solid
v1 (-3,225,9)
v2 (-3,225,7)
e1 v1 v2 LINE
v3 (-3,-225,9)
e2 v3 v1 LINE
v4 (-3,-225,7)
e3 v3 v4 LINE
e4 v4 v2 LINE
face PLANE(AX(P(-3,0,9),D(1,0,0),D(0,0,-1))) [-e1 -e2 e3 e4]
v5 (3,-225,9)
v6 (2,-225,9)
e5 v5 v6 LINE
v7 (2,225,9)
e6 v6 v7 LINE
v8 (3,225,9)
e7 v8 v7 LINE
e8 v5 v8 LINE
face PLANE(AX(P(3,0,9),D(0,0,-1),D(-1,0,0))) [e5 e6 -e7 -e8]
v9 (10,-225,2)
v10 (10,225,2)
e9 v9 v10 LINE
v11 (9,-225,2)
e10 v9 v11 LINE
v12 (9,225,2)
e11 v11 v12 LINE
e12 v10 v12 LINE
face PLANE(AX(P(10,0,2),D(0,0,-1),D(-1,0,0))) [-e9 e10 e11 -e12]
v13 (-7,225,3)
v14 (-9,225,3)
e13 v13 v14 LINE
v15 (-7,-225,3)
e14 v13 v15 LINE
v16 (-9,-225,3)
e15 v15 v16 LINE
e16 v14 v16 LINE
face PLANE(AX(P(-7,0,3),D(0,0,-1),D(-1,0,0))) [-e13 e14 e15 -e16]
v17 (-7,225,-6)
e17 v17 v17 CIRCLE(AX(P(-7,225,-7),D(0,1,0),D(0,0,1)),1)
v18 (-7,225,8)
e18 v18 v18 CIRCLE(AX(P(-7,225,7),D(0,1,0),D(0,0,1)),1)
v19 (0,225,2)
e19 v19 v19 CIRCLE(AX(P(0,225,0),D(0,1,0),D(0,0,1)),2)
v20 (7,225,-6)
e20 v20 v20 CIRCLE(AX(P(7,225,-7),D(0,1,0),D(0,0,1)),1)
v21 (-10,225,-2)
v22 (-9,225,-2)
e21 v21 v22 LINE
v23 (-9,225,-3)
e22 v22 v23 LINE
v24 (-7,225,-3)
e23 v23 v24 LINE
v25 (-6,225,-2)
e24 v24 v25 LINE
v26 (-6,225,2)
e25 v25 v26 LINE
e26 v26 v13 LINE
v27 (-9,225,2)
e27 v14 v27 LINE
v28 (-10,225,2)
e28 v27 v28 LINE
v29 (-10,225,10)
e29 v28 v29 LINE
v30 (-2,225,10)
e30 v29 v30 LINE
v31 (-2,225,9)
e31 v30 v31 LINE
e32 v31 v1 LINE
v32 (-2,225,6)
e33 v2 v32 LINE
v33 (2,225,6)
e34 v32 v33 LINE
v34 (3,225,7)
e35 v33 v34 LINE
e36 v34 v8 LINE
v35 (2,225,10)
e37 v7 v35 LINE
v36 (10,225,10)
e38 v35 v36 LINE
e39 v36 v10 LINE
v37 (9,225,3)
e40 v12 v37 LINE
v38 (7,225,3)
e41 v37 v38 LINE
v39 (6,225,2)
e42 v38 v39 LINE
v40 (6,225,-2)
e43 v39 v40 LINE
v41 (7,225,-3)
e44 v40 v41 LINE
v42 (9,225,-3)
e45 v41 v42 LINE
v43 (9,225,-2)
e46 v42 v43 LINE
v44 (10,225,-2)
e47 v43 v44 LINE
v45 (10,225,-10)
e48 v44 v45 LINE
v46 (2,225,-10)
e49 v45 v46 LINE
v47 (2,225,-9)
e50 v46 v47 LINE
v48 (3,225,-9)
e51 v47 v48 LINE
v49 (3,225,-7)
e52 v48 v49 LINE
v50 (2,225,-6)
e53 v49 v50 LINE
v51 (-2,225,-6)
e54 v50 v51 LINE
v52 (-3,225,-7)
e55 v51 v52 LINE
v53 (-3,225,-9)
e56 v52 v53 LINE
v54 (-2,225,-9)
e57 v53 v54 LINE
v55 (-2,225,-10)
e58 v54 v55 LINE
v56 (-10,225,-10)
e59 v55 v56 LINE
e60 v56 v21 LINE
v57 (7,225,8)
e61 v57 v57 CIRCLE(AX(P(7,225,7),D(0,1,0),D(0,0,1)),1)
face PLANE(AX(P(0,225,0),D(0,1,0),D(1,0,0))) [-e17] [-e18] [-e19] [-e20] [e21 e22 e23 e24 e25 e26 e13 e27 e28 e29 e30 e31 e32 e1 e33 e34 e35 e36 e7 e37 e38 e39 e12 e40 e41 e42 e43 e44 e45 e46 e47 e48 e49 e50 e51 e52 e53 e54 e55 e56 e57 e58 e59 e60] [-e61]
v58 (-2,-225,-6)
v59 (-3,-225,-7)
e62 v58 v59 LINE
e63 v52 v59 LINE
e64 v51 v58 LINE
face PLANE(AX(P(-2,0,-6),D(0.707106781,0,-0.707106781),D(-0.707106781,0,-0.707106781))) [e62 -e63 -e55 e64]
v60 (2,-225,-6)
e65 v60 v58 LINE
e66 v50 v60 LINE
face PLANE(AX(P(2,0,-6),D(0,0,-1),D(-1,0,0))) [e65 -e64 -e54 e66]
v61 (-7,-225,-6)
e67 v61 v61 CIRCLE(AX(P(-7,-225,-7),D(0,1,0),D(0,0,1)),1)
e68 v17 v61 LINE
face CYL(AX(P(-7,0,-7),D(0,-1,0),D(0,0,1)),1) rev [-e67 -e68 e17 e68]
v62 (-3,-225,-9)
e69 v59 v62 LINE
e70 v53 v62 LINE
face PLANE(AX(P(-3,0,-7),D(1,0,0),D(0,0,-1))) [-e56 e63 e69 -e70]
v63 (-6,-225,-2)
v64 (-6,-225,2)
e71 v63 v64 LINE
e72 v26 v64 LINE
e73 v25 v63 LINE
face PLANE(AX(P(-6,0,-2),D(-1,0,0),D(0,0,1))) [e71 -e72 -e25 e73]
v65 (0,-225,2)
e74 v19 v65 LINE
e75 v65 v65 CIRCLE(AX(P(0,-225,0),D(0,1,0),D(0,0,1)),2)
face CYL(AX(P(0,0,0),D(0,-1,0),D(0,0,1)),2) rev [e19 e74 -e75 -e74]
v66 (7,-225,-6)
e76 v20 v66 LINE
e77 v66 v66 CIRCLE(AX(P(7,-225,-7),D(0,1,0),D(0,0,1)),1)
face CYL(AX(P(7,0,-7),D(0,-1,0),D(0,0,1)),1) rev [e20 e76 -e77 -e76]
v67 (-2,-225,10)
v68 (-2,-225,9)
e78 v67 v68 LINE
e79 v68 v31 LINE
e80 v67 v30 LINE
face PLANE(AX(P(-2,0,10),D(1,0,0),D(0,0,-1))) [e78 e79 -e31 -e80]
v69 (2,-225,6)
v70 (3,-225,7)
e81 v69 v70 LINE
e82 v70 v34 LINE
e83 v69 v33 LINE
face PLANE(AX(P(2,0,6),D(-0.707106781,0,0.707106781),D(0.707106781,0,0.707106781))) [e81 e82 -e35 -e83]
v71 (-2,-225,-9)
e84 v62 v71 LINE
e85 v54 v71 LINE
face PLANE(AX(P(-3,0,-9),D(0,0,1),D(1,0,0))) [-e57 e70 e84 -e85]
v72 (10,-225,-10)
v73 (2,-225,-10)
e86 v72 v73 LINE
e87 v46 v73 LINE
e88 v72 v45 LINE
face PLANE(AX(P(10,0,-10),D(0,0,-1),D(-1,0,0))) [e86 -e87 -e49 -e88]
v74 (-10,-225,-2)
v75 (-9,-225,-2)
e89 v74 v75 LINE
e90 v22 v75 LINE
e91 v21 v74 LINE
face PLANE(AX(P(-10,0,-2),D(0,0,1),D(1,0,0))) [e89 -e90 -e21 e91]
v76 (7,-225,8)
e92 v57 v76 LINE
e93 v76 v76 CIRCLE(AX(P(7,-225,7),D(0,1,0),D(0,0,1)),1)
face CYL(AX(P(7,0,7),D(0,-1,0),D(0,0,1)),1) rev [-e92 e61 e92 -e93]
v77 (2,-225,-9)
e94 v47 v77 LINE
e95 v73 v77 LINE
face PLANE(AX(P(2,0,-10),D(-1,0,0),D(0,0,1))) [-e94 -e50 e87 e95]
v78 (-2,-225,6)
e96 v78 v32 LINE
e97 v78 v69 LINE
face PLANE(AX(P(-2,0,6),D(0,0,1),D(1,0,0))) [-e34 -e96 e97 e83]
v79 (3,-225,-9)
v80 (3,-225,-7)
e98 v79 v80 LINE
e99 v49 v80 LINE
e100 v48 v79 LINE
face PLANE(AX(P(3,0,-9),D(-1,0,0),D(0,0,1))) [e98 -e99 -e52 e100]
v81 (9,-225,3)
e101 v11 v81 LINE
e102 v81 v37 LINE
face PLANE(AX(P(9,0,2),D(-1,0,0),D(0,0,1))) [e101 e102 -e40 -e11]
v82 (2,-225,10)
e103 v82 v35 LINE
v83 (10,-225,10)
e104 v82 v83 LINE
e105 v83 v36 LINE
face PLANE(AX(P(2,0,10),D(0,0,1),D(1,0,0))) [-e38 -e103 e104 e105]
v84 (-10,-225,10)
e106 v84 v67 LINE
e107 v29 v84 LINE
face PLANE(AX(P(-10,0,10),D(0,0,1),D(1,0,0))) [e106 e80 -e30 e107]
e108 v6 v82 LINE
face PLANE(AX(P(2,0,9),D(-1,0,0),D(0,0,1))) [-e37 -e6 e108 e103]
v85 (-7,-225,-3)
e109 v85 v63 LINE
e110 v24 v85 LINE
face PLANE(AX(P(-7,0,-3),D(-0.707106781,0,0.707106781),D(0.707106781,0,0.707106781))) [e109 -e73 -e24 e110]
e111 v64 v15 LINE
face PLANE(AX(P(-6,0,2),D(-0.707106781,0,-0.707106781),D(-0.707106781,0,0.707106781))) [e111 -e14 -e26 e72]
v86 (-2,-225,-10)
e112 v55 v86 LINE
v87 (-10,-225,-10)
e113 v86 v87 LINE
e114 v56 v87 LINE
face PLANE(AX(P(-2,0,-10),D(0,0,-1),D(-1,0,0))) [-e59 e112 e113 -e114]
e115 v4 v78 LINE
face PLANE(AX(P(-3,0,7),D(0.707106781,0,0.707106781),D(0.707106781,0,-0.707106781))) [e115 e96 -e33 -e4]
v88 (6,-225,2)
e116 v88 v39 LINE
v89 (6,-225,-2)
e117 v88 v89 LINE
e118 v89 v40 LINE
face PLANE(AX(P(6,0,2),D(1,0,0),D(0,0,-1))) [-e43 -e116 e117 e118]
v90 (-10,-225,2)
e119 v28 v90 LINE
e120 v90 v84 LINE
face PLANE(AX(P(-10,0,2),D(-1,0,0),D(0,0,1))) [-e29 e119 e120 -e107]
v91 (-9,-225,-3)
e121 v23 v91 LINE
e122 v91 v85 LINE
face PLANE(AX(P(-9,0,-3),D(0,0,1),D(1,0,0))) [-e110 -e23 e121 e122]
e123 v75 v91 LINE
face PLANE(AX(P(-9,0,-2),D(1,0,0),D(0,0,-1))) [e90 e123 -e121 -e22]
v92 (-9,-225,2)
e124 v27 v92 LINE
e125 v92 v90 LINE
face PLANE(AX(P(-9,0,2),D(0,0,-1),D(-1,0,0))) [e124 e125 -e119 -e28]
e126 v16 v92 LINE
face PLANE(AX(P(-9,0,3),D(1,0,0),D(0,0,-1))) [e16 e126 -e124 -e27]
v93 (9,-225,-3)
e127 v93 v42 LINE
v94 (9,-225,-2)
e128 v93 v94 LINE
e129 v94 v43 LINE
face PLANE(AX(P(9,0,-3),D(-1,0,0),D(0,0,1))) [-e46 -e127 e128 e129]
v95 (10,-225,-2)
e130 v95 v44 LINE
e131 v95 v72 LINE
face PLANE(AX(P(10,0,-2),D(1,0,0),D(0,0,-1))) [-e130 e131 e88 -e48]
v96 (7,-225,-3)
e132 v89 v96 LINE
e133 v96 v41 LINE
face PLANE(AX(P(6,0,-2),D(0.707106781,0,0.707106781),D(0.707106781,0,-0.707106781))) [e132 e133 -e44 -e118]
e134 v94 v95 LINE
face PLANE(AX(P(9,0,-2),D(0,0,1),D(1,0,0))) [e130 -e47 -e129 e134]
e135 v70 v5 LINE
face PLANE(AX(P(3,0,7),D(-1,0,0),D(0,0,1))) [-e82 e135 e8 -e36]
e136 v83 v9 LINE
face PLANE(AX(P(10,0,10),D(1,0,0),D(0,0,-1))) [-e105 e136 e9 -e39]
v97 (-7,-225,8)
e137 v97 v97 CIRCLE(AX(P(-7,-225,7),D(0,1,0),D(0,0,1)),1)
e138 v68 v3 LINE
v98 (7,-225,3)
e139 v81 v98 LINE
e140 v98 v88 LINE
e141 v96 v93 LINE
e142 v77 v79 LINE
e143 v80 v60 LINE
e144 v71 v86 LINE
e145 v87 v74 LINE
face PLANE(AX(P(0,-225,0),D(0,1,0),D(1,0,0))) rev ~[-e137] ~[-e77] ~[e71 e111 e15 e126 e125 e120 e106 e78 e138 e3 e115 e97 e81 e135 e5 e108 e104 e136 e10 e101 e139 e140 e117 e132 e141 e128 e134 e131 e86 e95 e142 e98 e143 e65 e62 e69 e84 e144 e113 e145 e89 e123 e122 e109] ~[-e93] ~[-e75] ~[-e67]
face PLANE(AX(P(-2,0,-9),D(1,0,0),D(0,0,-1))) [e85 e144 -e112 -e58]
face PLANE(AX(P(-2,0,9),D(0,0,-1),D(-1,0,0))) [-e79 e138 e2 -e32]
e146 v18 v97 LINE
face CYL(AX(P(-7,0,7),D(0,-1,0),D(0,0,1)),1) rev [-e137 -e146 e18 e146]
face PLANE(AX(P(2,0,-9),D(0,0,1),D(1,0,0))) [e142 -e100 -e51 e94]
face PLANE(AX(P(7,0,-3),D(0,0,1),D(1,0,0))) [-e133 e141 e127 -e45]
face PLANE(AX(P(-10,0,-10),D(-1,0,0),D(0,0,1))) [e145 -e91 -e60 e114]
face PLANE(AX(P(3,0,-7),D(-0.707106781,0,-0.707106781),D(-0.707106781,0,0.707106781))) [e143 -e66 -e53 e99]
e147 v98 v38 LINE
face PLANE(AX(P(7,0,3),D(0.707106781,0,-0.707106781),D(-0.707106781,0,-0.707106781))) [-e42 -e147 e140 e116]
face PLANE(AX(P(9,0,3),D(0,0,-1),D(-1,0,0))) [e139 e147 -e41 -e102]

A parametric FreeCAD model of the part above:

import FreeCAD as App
import Part
import Sketcher


def add_polygon(sketch, points):
    """Adds a closed chain of lines whose ends are joined by coincident constraints."""
    first, n = sketch.GeometryCount, len(points)
    for a, b in zip(points, points[1:] + points[:1]):
        sketch.addGeometry(Part.LineSegment(App.Vector(*a, 0), App.Vector(*b, 0)), False)
    for i in range(n):
        sketch.addConstraint(Sketcher.Constraint("Coincident", first + i, 2, first + (i + 1) % n, 1))

doc = App.newDocument("Part")
body = doc.addObject("PartDesign::Body", "Body")

sketch1 = doc.addObject("Sketcher::SketchObject", "Sketch")
body.addObject(sketch1)
sketch1.AttachmentSupport = (doc.XZ_Plane, [""])
sketch1.MapMode = "FlatFace"
add_polygon(sketch1, [(-10, 10), (-2, 10), (-2, 9), (-3, 9), (-3, 7), (-2, 6), (2, 6), (3, 7), (3, 9), (2, 9), (2, 10), (10, 10), (10, 2), (9, 2), (9, 3), (7, 3), (6, 2), (6, -2), (7, -3), (9, -3), (9, -2), (10, -2), (10, -10), (2, -10), (2, -9), (3, -9), (3, -7), (2, -6), (-2, -6), (-3, -7), (-3, -9), (-2, -9), (-2, -10), (-10, -10), (-10, -2), (-9, -2), (-9, -3), (-7, -3), (-6, -2), (-6, 2), (-7, 3), (-9, 3), (-9, 2), (-10, 2)])
sketch1.addGeometry(Part.Circle(App.Vector(-7, 7, 0), App.Vector(0, 0, 1), 1), False)
sketch1.addGeometry(Part.Circle(App.Vector(7, 7, 0), App.Vector(0, 0, 1), 1), False)
sketch1.addGeometry(Part.Circle(App.Vector(-7, -7, 0), App.Vector(0, 0, 1), 1), False)
sketch1.addGeometry(Part.Circle(App.Vector(0, 0, 0), App.Vector(0, 0, 1), 2), False)
sketch1.addGeometry(Part.Circle(App.Vector(7, -7, 0), App.Vector(0, 0, 1), 1), False)
sketch1.addConstraint([
    Sketcher.Constraint("Horizontal", 0),
    Sketcher.Constraint("Vertical", 1),
    Sketcher.Constraint("Horizontal", 2),
    Sketcher.Constraint("Vertical", 3),
    Sketcher.Constraint("Horizontal", 5),
    Sketcher.Constraint("Vertical", 7),
    Sketcher.Constraint("Horizontal", 8),
    Sketcher.Constraint("Vertical", 9),
    Sketcher.Constraint("Horizontal", 10),
    Sketcher.Constraint("Vertical", 11),
    Sketcher.Constraint("Horizontal", 12),
    Sketcher.Constraint("Vertical", 13),
    Sketcher.Constraint("Horizontal", 14),
    Sketcher.Constraint("Vertical", 16),
    Sketcher.Constraint("Horizontal", 18),
    Sketcher.Constraint("Vertical", 19),
    Sketcher.Constraint("Horizontal", 20),
    Sketcher.Constraint("Vertical", 21),
    Sketcher.Constraint("Horizontal", 22),
    Sketcher.Constraint("Vertical", 23),
    Sketcher.Constraint("Horizontal", 24),
    Sketcher.Constraint("Vertical", 25),
    Sketcher.Constraint("Horizontal", 27),
    Sketcher.Constraint("Vertical", 29),
    Sketcher.Constraint("Horizontal", 30),
    Sketcher.Constraint("Vertical", 31),
    Sketcher.Constraint("Horizontal", 32),
    Sketcher.Constraint("Vertical", 33),
    Sketcher.Constraint("Horizontal", 34),
    Sketcher.Constraint("Vertical", 35),
    Sketcher.Constraint("Horizontal", 36),
    Sketcher.Constraint("Vertical", 38),
    Sketcher.Constraint("Horizontal", 40),
    Sketcher.Constraint("Vertical", 41),
    Sketcher.Constraint("Horizontal", 42),
    Sketcher.Constraint("Vertical", 43),
    Sketcher.Constraint("Coincident", 47, 3, -1, 1),
    Sketcher.Constraint("Equal", 44, 45),
    Sketcher.Constraint("Equal", 45, 46),
    Sketcher.Constraint("Equal", 46, 48),
    Sketcher.Constraint("Symmetric", 45, 3, 46, 3, -1, 1),
    Sketcher.Constraint("Symmetric", 44, 3, 48, 3, -1, 1),
    Sketcher.Constraint("Symmetric", 0, 2, 22, 2, -1, 1),
    Sketcher.Constraint("Symmetric", 2, 2, 24, 2, -1, 1),
    Sketcher.Constraint("Symmetric", 4, 2, 26, 2, -1, 1),
    Sketcher.Constraint("Symmetric", 6, 2, 28, 2, -1, 1),
    Sketcher.Constraint("Symmetric", 8, 2, 30, 2, -1, 1),
    Sketcher.Constraint("Symmetric", 10, 2, 32, 2, -1, 1),
    Sketcher.Constraint("Symmetric", 12, 2, 34, 2, -1, 1),
    Sketcher.Constraint("Symmetric", 14, 2, 36, 2, -1, 1),
    Sketcher.Constraint("Symmetric", 15, 2, 37, 2, -1, 1),
    Sketcher.Constraint("Symmetric", 17, 2, 39, 2, -1, 1),
    Sketcher.Constraint("Symmetric", 19, 2, 41, 2, -1, 1),
    Sketcher.Constraint("Symmetric", 44, 3, 45, 3, -2),
    Sketcher.Constraint("Symmetric", 3, 2, 6, 2, -2),
    Sketcher.Constraint("Symmetric", 1, 2, 8, 2, -2),
    Sketcher.Constraint("Symmetric", 21, 2, 32, 2, -2),
    Sketcher.Constraint("Symmetric", 19, 2, 34, 2, -2),
    Sketcher.Constraint("Symmetric", 17, 2, 36, 2, -2),
    Sketcher.Constraint("Perpendicular", 4, 6),
    Sketcher.Constraint("Parallel", 6, 15),
    Sketcher.Constraint("Perpendicular", 15, 17),
    Sketcher.Constraint("Parallel", 17, 26),
    Sketcher.Constraint("Perpendicular", 26, 28),
    Sketcher.Constraint("Perpendicular", 37, 39),
    Sketcher.Constraint("Horizontal", 45, 3, 3, 2),
    Sketcher.Constraint("Horizontal", 12, 2, 15, 2),
    Sketcher.Constraint("Horizontal", 16, 2, 19, 2),
    Sketcher.Constraint("Vertical", 1, 2, 4, 2),
    Sketcher.Constraint("Vertical", 48, 3, 14, 2),
    Sketcher.Constraint("Vertical", 33, 2, 42, 2),
    Sketcher.Constraint("Equal", 8, 12),
    Sketcher.Constraint("Equal", 42, 1),
    Sketcher.Constraint("Equal", 40, 3),
    Sketcher.Constraint("Equal", 32, 11),
    Sketcher.Constraint("Equal", 9, 13),
    Sketcher.Constraint("Equal", 27, 16),
    Sketcher.Constraint("Diameter", 44, 2.0),
    Sketcher.Constraint("Diameter", 47, 4.0),
    Sketcher.Constraint("DistanceX", 0, 1, 0, 2, 8.0),
    Sketcher.Constraint("DistanceX", 2, 2, 2, 1, 1.0),
    Sketcher.Constraint("DistanceX", 5, 1, 5, 2, 4.0),
    Sketcher.Constraint("DistanceX", 14, 2, 14, 1, 2.0),
])
pad1 = doc.addObject("PartDesign::Pad", "Pad")
body.addObject(pad1)
pad1.Profile = sketch1
pad1.Length = 450
pad1.Midplane = True

doc.recompute()
